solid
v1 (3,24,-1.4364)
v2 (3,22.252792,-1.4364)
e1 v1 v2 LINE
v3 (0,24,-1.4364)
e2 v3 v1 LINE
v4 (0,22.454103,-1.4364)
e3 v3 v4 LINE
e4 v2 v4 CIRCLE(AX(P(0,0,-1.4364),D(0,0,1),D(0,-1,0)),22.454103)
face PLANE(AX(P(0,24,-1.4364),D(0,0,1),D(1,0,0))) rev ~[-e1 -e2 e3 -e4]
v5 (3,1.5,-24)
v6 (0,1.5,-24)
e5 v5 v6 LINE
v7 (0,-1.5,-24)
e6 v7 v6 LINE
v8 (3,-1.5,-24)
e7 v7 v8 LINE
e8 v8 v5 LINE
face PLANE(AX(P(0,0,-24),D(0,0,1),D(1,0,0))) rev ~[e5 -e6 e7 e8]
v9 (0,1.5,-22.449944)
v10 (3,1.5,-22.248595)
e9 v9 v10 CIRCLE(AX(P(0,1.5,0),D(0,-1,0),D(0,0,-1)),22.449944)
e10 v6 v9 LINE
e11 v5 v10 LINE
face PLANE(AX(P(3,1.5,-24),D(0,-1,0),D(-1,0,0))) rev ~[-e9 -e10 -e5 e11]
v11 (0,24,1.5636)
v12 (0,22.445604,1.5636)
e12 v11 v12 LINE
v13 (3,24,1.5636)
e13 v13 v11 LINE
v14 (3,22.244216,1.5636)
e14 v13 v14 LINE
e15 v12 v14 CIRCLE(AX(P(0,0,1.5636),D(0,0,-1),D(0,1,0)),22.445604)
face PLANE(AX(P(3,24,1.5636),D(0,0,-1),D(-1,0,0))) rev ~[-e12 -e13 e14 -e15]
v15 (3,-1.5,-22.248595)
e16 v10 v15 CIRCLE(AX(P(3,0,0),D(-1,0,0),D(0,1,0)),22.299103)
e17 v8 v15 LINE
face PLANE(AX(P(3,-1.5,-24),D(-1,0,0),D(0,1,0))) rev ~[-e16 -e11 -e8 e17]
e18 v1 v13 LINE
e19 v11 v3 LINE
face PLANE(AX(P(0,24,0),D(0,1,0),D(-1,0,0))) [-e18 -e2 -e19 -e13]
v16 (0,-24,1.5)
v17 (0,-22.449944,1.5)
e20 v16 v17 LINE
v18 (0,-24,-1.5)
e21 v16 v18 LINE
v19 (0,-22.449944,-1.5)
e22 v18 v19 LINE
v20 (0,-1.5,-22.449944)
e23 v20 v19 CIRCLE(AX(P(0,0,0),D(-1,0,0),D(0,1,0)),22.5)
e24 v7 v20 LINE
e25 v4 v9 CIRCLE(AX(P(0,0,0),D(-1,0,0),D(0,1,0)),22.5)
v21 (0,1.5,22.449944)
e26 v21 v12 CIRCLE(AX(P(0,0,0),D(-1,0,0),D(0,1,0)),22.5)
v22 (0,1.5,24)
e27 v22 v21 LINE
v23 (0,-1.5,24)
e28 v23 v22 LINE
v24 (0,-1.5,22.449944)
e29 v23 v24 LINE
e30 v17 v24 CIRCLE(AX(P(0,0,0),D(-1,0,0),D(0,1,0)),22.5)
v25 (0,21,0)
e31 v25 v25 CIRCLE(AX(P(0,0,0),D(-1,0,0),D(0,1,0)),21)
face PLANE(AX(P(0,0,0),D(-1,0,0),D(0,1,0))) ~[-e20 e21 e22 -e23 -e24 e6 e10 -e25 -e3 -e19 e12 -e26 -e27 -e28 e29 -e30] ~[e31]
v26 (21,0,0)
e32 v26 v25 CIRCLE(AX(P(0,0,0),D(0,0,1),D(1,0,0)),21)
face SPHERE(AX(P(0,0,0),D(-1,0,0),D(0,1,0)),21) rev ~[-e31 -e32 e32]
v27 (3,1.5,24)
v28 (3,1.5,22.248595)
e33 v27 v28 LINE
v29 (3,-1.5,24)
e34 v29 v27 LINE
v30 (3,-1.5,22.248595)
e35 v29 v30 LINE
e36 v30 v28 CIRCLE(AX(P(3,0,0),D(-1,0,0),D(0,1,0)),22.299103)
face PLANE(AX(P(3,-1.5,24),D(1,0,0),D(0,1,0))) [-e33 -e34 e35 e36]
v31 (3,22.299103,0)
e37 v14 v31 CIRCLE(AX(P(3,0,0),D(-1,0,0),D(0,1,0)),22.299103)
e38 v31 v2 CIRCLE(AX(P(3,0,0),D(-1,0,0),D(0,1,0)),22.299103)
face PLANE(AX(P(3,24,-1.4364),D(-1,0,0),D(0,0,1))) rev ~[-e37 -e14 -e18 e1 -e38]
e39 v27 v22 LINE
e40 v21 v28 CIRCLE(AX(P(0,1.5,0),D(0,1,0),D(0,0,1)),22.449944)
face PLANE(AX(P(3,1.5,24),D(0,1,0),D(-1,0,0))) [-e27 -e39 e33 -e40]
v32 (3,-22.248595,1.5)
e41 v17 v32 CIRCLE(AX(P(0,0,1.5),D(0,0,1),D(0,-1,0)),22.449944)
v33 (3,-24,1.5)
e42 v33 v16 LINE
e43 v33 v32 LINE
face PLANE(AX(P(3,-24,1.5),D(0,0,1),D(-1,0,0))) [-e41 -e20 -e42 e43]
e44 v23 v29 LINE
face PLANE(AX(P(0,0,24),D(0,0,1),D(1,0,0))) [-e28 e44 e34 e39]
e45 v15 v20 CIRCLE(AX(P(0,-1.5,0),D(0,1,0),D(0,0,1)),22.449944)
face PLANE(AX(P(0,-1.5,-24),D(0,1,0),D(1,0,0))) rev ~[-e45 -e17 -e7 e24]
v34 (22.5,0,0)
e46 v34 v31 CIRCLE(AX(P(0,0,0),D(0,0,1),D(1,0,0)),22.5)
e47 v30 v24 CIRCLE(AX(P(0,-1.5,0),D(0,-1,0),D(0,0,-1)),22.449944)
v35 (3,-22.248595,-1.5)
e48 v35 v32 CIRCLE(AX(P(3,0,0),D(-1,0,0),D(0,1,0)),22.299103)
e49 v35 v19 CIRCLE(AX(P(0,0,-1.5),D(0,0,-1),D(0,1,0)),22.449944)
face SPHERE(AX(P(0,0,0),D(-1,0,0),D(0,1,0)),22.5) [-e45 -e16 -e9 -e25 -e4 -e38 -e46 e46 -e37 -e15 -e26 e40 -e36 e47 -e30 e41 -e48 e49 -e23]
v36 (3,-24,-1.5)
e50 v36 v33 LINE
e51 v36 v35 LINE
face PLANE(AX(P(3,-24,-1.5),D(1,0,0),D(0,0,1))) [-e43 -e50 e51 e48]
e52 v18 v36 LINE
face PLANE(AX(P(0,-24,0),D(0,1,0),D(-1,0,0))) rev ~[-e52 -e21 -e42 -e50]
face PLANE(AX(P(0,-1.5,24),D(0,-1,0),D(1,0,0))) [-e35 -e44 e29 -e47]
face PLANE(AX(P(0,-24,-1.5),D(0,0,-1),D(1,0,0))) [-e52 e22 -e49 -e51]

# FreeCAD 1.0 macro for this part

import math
import FreeCAD as App
import Part
import Sketcher

V = App.Vector


def faces_at(feature, points):
    """Names of the faces that lie closest to the given points."""
    faces = feature.Shape.Faces
    near = lambda p: min(range(len(faces)), key=lambda i: faces[i].distToShape(Part.Vertex(*p))[0])
    return sorted({f"Face{near(p) + 1}" for p in points})

doc = App.newDocument("Part")
body = doc.addObject("PartDesign::Body", "Body")

sketch1 = body.newObject("Sketcher::SketchObject", "Sketch")
sketch1.AttachmentSupport = (doc.getObject("XY_Plane"), [""])
sketch1.MapMode = "FlatFace"
sketch1.addGeometry([
    Part.LineSegment(V(0, 22, 0), V(0, 0, 0)),
    Part.LineSegment(V(0, 0, 0), V(22, 0, 0)),
    Part.ArcOfCircle(Part.Circle(V(0, 0, 0), V(0, 0, 1), 22), math.radians(0), math.radians(90)),
], False)
sketch1.addConstraint([
    Sketcher.Constraint("Coincident", 0, 2, 1, 1),
    Sketcher.Constraint("Coincident", 1, 2, 2, 1),
    Sketcher.Constraint("Coincident", 2, 2, 0, 1),
    Sketcher.Constraint("Vertical", 0),
    Sketcher.Constraint("Horizontal", 1),
    Sketcher.Constraint("Coincident", 2, 3, -1, 1),
    Sketcher.Constraint("Coincident", 0, 2, -1, 1),
    Sketcher.Constraint("Radius", 2, 22.5),
])
revolution = body.newObject("PartDesign::Revolution", "Revolution")
revolution.Profile = sketch1
revolution.ReferenceAxis = (sketch1, ["H_Axis"])
revolution.Angle = 360
doc.recompute()

thickness = body.newObject("PartDesign::Thickness", "Thickness")
thickness.Base = (revolution, faces_at(revolution, [(0, 7.282, 1.795)]))
thickness.Value = 1.5
thickness.Reversed = True
thickness.Join = "Intersection"

sketch2 = body.newObject("Sketcher::SketchObject", "Sketch001")
sketch2.AttachmentSupport = (doc.getObject("XY_Plane"), [""])
sketch2.MapMode = "FlatFace"
sketch2.AttachmentOffset = App.Placement(V(0, 0, 24), App.Rotation())
sketch2.addGeometry([
    Part.LineSegment(V(0, 1.5, 0), V(0, -1.5, 0)),
    Part.LineSegment(V(0, -1.5, 0), V(3, -1.5, 0)),
    Part.LineSegment(V(3, -1.5, 0), V(3, 1.5, 0)),
    Part.LineSegment(V(3, 1.5, 0), V(0, 1.5, 0)),
], False)
sketch2.addConstraint([
    Sketcher.Constraint("Coincident", 0, 2, 1, 1),
    Sketcher.Constraint("Coincident", 1, 2, 2, 1),
    Sketcher.Constraint("Coincident", 2, 2, 3, 1),
    Sketcher.Constraint("Coincident", 3, 2, 0, 1),
    Sketcher.Constraint("Vertical", 0),
    Sketcher.Constraint("Horizontal", 1),
    Sketcher.Constraint("Vertical", 2),
    Sketcher.Constraint("Horizontal", 3),
    Sketcher.Constraint("Symmetric", 0, 2, 3, 2, -1, 1),
    Sketcher.Constraint("Equal", 3, 0),
    Sketcher.Constraint("DistanceX", 1, 1, 1, 2, 3.0),
])
pad1 = body.newObject("PartDesign::Pad", "Pad")
pad1.Profile = sketch2
pad1.Type = "UpToFirst"
pad1.Reversed = True

sketch3 = body.newObject("Sketcher::SketchObject", "Sketch002")
sketch3.AttachmentSupport = (doc.getObject("XZ_Plane"), [""])
sketch3.MapMode = "FlatFace"
sketch3.AttachmentOffset = App.Placement(V(0, 0, 24), App.Rotation())
sketch3.addGeometry([
    Part.LineSegment(V(0, -1.5, 0), V(0, 1.5, 0)),
    Part.LineSegment(V(0, 1.5, 0), V(3, 1.5, 0)),
    Part.LineSegment(V(3, 1.5, 0), V(3, -1.5, 0)),
    Part.LineSegment(V(3, -1.5, 0), V(0, -1.5, 0)),
], False)
sketch3.addConstraint([
    Sketcher.Constraint("Coincident", 0, 2, 1, 1),
    Sketcher.Constraint("Coincident", 1, 2, 2, 1),
    Sketcher.Constraint("Coincident", 2, 2, 3, 1),
    Sketcher.Constraint("Coincident", 3, 2, 0, 1),
    Sketcher.Constraint("Vertical", 0),
    Sketcher.Constraint("Horizontal", 1),
    Sketcher.Constraint("Vertical", 2),
    Sketcher.Constraint("Horizontal", 3),
    Sketcher.Constraint("Symmetric", 0, 2, 3, 2, -1, 1),
    Sketcher.Constraint("Equal", 3, 0),
    Sketcher.Constraint("DistanceX", 1, 1, 1, 2, 3.0),
])
pad2 = body.newObject("PartDesign::Pad", "Pad001")
pad2.Profile = sketch3
pad2.Type = "UpToFirst"
pad2.Reversed = True

sketch4 = body.newObject("Sketcher::SketchObject", "Sketch003")
sketch4.AttachmentSupport = (doc.getObject("XY_Plane"), [""])
sketch4.MapMode = "FlatFace"
sketch4.AttachmentOffset = App.Placement(V(0, 0, -24), App.Rotation())
sketch4.addGeometry([
    Part.LineSegment(V(0, 1.5, 0), V(0, -1.5, 0)),
    Part.LineSegment(V(0, -1.5, 0), V(3, -1.5, 0)),
    Part.LineSegment(V(3, -1.5, 0), V(3, 1.5, 0)),
    Part.LineSegment(V(3, 1.5, 0), V(0, 1.5, 0)),
], False)
sketch4.addConstraint([
    Sketcher.Constraint("Coincident", 0, 2, 1, 1),
    Sketcher.Constraint("Coincident", 1, 2, 2, 1),
    Sketcher.Constraint("Coincident", 2, 2, 3, 1),
    Sketcher.Constraint("Coincident", 3, 2, 0, 1),
    Sketcher.Constraint("Vertical", 0),
    Sketcher.Constraint("Horizontal", 1),
    Sketcher.Constraint("Vertical", 2),
    Sketcher.Constraint("Horizontal", 3),
    Sketcher.Constraint("Symmetric", 0, 2, 3, 2, -1, 1),
    Sketcher.Constraint("Equal", 3, 0),
    Sketcher.Constraint("DistanceX", 1, 1, 1, 2, 3.0),
])
pad3 = body.newObject("PartDesign::Pad", "Pad002")
pad3.Profile = sketch4
pad3.Type = "UpToFirst"

sketch5 = body.newObject("Sketcher::SketchObject", "Sketch004")
sketch5.AttachmentSupport = (doc.getObject("XZ_Plane"), [""])
sketch5.MapMode = "FlatFace"
sketch5.AttachmentOffset = App.Placement(V(0, 0, -24), App.Rotation())
sketch5.addGeometry([
    Part.LineSegment(V(3, -1.4, 0), V(0, -1.4, 0)),
    Part.LineSegment(V(0, -1.4, 0), V(0, 1.6, 0)),
    Part.LineSegment(V(0, 1.6, 0), V(3, 1.6, 0)),
    Part.LineSegment(V(3, 1.6, 0), V(3, -1.4, 0)),
], False)
sketch5.addConstraint([
    Sketcher.Constraint("Coincident", 0, 2, 1, 1),
    Sketcher.Constraint("Coincident", 1, 2, 2, 1),
    Sketcher.Constraint("Coincident", 2, 2, 3, 1),
    Sketcher.Constraint("Coincident", 3, 2, 0, 1),
    Sketcher.Constraint("Horizontal", 0),
    Sketcher.Constraint("Vertical", 1),
    Sketcher.Constraint("Horizontal", 2),
    Sketcher.Constraint("Vertical", 3),
    Sketcher.Constraint("PointOnObject", 0, 2, -2),
    Sketcher.Constraint("Equal", 2, 1),
    Sketcher.Constraint("DistanceX", 0, 2, 0, 1, 3.0),
    Sketcher.Constraint("DistanceY", 0, 2, -1, 1, 1.4364),
])
pad4 = body.newObject("PartDesign::Pad", "Pad003")
pad4.Profile = sketch5
pad4.Type = "UpToFirst"

doc.recompute()
